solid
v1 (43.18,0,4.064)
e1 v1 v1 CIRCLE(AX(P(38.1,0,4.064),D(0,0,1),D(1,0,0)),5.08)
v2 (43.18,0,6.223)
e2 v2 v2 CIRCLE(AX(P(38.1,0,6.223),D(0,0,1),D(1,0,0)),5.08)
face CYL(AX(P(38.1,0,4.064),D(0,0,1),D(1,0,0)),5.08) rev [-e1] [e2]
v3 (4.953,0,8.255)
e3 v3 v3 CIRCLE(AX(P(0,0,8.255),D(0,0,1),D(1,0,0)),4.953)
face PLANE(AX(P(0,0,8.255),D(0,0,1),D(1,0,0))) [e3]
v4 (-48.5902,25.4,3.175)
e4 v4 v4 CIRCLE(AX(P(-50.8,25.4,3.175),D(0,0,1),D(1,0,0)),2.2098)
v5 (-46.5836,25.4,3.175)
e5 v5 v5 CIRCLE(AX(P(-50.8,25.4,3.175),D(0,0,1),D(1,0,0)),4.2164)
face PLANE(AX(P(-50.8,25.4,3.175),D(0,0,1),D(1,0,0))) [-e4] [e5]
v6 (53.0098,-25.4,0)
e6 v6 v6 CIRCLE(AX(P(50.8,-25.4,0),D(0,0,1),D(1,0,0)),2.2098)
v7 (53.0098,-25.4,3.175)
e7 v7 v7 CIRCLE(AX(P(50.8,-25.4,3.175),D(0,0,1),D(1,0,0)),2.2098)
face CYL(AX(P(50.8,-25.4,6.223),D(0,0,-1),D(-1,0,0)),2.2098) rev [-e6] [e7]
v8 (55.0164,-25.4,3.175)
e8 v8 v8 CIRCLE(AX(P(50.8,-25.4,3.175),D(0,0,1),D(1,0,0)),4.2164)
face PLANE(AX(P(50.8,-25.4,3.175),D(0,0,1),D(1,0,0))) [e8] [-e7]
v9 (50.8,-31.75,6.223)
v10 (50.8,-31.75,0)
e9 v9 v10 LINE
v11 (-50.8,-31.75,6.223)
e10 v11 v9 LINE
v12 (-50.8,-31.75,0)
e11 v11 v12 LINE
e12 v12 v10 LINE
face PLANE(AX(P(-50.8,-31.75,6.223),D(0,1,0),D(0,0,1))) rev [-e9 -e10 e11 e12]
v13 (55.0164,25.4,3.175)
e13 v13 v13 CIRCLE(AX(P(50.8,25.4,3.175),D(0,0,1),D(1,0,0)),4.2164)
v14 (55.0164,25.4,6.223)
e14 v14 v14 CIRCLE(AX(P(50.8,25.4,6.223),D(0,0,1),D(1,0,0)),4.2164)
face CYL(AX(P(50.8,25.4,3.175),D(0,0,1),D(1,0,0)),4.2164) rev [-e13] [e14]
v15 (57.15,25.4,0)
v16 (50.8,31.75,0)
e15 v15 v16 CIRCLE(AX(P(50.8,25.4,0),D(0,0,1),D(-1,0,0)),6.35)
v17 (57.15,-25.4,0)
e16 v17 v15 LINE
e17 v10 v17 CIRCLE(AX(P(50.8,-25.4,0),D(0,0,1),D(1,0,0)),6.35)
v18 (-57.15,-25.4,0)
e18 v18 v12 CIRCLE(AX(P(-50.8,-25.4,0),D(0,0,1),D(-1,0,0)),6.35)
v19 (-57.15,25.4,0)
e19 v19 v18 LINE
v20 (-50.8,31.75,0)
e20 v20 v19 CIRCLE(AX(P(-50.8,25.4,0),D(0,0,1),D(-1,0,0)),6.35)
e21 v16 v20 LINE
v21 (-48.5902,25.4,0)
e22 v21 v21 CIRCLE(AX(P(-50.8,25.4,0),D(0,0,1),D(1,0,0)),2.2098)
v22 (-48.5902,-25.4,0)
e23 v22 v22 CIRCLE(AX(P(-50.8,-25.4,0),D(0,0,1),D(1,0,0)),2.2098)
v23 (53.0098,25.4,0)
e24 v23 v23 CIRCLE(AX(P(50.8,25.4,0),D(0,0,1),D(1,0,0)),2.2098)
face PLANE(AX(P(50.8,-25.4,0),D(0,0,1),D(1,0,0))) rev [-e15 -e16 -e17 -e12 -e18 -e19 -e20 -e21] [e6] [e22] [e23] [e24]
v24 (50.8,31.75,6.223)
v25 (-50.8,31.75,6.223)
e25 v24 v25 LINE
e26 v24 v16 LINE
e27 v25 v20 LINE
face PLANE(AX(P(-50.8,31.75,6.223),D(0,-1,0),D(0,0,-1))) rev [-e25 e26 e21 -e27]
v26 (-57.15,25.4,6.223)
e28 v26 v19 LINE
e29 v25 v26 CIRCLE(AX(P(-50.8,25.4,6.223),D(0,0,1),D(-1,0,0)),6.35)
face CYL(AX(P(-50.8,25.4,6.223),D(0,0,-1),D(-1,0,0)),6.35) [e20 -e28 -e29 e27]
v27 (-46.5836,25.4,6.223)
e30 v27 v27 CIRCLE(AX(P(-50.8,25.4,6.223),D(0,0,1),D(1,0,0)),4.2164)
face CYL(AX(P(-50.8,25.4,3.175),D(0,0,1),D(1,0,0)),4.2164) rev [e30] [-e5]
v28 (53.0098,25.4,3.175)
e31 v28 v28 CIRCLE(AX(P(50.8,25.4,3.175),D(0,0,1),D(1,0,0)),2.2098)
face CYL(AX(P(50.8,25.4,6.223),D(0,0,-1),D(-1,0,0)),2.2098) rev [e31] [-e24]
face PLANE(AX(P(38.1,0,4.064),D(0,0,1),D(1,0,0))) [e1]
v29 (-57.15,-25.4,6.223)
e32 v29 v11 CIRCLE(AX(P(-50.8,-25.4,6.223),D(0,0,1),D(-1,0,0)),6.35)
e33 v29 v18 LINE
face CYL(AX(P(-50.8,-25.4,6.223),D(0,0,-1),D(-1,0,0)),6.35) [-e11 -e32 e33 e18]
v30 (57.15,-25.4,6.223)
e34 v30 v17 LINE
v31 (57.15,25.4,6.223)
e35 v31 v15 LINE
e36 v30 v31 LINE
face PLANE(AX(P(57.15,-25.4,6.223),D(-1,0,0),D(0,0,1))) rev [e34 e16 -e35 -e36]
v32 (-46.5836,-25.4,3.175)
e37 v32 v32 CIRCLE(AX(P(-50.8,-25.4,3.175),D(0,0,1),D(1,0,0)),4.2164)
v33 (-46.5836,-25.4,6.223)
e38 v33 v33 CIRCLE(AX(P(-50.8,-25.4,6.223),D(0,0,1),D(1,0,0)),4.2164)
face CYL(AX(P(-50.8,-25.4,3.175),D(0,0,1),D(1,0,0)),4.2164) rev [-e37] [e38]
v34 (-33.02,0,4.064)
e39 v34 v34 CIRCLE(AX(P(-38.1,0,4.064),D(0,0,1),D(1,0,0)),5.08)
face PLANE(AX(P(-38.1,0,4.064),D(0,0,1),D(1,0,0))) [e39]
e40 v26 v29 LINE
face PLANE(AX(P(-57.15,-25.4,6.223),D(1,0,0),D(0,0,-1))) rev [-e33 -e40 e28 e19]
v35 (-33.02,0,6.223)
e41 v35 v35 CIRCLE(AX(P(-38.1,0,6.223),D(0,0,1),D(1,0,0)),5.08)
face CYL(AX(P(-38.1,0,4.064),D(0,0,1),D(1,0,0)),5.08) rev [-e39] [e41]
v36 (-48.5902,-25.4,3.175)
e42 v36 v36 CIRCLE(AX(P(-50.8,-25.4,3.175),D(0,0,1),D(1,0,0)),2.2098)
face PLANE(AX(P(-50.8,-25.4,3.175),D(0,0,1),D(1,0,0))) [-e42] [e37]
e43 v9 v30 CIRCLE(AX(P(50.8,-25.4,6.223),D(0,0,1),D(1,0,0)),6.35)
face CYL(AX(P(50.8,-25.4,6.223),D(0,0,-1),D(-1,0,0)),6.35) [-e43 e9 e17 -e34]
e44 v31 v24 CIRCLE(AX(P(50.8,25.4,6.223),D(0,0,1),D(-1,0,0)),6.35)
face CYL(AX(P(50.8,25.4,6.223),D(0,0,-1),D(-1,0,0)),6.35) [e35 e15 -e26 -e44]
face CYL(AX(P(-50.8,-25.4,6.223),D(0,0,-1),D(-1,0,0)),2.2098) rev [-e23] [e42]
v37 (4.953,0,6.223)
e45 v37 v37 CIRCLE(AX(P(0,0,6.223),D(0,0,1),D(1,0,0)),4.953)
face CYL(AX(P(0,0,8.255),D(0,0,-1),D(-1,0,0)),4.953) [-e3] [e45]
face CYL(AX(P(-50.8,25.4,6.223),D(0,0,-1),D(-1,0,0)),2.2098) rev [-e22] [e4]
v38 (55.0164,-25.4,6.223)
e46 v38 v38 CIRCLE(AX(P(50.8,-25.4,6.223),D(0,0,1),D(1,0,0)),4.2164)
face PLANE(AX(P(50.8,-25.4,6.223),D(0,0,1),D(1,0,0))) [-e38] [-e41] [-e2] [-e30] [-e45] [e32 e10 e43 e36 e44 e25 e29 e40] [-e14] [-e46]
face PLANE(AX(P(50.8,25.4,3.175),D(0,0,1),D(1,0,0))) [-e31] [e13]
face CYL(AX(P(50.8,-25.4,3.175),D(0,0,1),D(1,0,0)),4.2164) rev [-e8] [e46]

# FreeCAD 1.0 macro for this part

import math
import FreeCAD as App
import Part
import Sketcher
Q = App.Units.Quantity

doc = App.newDocument("Part")
body = doc.addObject("PartDesign::Body", "Body")

sketch1 = body.newObject("Sketcher::SketchObject", "Sketch")
sketch1.AttachmentSupport = (doc.getObject("XY_Plane"), [""])
sketch1.MapMode = "FlatFace"
sketch1.addGeometry(Part.LineSegment(App.Vector(-50.8, -31.8, 0), App.Vector(50.8, -31.8, 0)), False)
sketch1.addGeometry(Part.ArcOfCircle(Part.Circle(App.Vector(50.8, -25.4, 0), App.Vector(0, 0, 1), 6.3), math.radians(-90), math.radians(0)), False)
sketch1.addGeometry(Part.LineSegment(App.Vector(57.1, -25.4, 0), App.Vector(57.1, 25.4, 0)), False)
sketch1.addGeometry(Part.ArcOfCircle(Part.Circle(App.Vector(50.8, 25.4, 0), App.Vector(0, 0, 1), 6.3), math.radians(0), math.radians(90)), False)
sketch1.addGeometry(Part.LineSegment(App.Vector(50.8, 31.8, 0), App.Vector(-50.8, 31.8, 0)), False)
sketch1.addGeometry(Part.ArcOfCircle(Part.Circle(App.Vector(-50.8, 25.4, 0), App.Vector(0, 0, 1), 6.3), math.radians(90), math.radians(180)), False)
sketch1.addGeometry(Part.LineSegment(App.Vector(-57.1, 25.4, 0), App.Vector(-57.1, -25.4, 0)), False)
sketch1.addGeometry(Part.ArcOfCircle(Part.Circle(App.Vector(-50.8, -25.4, 0), App.Vector(0, 0, 1), 6.3), math.radians(180), math.radians(270)), False)
sketch1.addGeometry(Part.Circle(App.Vector(-50.8, -25.4, 0), App.Vector(0, 0, 1), 2.2), False)
sketch1.addGeometry(Part.Circle(App.Vector(50.8, -25.4, 0), App.Vector(0, 0, 1), 2.2), False)
sketch1.addGeometry(Part.Circle(App.Vector(-50.8, 25.4, 0), App.Vector(0, 0, 1), 2.2), False)
sketch1.addGeometry(Part.Circle(App.Vector(50.8, 25.4, 0), App.Vector(0, 0, 1), 2.2), False)
sketch1.addConstraint(Sketcher.Constraint("Tangent", 0, 2, 1, 1))
sketch1.addConstraint(Sketcher.Constraint("Tangent", 1, 2, 2, 1))
sketch1.addConstraint(Sketcher.Constraint("Tangent", 2, 2, 3, 1))
sketch1.addConstraint(Sketcher.Constraint("Tangent", 3, 2, 4, 1))
sketch1.addConstraint(Sketcher.Constraint("Tangent", 4, 2, 5, 1))
sketch1.addConstraint(Sketcher.Constraint("Tangent", 5, 2, 6, 1))
sketch1.addConstraint(Sketcher.Constraint("Tangent", 6, 2, 7, 1))
sketch1.addConstraint(Sketcher.Constraint("Tangent", 7, 2, 0, 1))
sketch1.addConstraint(Sketcher.Constraint("Horizontal", 0))
sketch1.addConstraint(Sketcher.Constraint("Vertical", 2))
sketch1.addConstraint(Sketcher.Constraint("Horizontal", 4))
sketch1.addConstraint(Sketcher.Constraint("Vertical", 6))
sketch1.addConstraint(Sketcher.Constraint("Coincident", 8, 3, 7, 3))
sketch1.addConstraint(Sketcher.Constraint("Coincident", 9, 3, 1, 3))
sketch1.addConstraint(Sketcher.Constraint("Coincident", 10, 3, 5, 3))
sketch1.addConstraint(Sketcher.Constraint("Coincident", 11, 3, 3, 3))
sketch1.addConstraint(Sketcher.Constraint("Equal", 1, 3))
sketch1.addConstraint(Sketcher.Constraint("Equal", 3, 5))
sketch1.addConstraint(Sketcher.Constraint("Equal", 5, 7))
sketch1.addConstraint(Sketcher.Constraint("Equal", 8, 9))
sketch1.addConstraint(Sketcher.Constraint("Equal", 9, 10))
sketch1.addConstraint(Sketcher.Constraint("Equal", 10, 11))
sketch1.addConstraint(Sketcher.Constraint("Symmetric", 1, 3, 5, 3, -1, 1))
sketch1.addConstraint(Sketcher.Constraint("DistanceX", 0, 1, 0, 2, Q("4 in")))
sketch1.addConstraint(Sketcher.Constraint("DistanceY", 2, 1, 2, 2, Q("2 in")))
sketch1.addConstraint(Sketcher.Constraint("Radius", 1, Q("0.25 in")))
sketch1.addConstraint(Sketcher.Constraint("Diameter", 8, Q("0.174 in")))
pad1 = body.newObject("PartDesign::Pad", "Pad")
pad1.Profile = sketch1
pad1.Length = Q("0.245 in")

sketch2 = body.newObject("Sketcher::SketchObject", "Sketch001")
sketch2.AttachmentSupport = (doc.getObject("XY_Plane"), [""])
sketch2.MapMode = "FlatFace"
sketch2.AttachmentOffset = App.Placement(App.Vector(0, 0, 0.245 * 25.4), App.Rotation())
sketch2.addGeometry(Part.Circle(App.Vector(-50.8, 25.4, 0), App.Vector(0, 0, 1), 4.2), False)
sketch2.addGeometry(Part.Circle(App.Vector(50.8, 25.4, 0), App.Vector(0, 0, 1), 4.2), False)
sketch2.addGeometry(Part.Circle(App.Vector(50.8, -25.4, 0), App.Vector(0, 0, 1), 4.2), False)
sketch2.addGeometry(Part.Circle(App.Vector(-50.8, -25.4, 0), App.Vector(0, 0, 1), 4.2), False)
sketch2.addConstraint(Sketcher.Constraint("Equal", 0, 1))
sketch2.addConstraint(Sketcher.Constraint("Equal", 1, 2))
sketch2.addConstraint(Sketcher.Constraint("Equal", 2, 3))
sketch2.addConstraint(Sketcher.Constraint("Symmetric", 0, 3, 2, 3, -1, 1))
sketch2.addConstraint(Sketcher.Constraint("Symmetric", 1, 3, 3, 3, -1, 1))
sketch2.addConstraint(Sketcher.Constraint("Symmetric", 0, 3, 1, 3, -2))
sketch2.addConstraint(Sketcher.Constraint("Diameter", 0, Q("0.332 in")))
sketch2.addConstraint(Sketcher.Constraint("DistanceX", 0, 3, -1, 1, Q("2 in")))
sketch2.addConstraint(Sketcher.Constraint("DistanceY", -1, 1, 0, 3, Q("1 in")))
pocket1 = body.newObject("PartDesign::Pocket", "Pocket")
pocket1.Profile = sketch2
pocket1.Length = Q("0.12 in")

sketch3 = body.newObject("Sketcher::SketchObject", "Sketch002")
sketch3.AttachmentSupport = (doc.getObject("XY_Plane"), [""])
sketch3.MapMode = "FlatFace"
sketch3.AttachmentOffset = App.Placement(App.Vector(0, 0, 0.245 * 25.4), App.Rotation())
sketch3.addGeometry(Part.Circle(App.Vector(38, 0, 0), App.Vector(0, 0, 1), 5), False)
sketch3.addGeometry(Part.Circle(App.Vector(-38, 0, 0), App.Vector(0, 0, 1), 5), False)
sketch3.addConstraint(Sketcher.Constraint("Equal", 0, 1))
sketch3.addConstraint(Sketcher.Constraint("Symmetric", 0, 3, 1, 3, -1, 1))
sketch3.addConstraint(Sketcher.Constraint("PointOnObject", 0, 3, -1))
sketch3.addConstraint(Sketcher.Constraint("Diameter", 0, Q("0.4 in")))
sketch3.addConstraint(Sketcher.Constraint("DistanceX", 1, 3, 0, 3, Q("3 in")))
pocket2 = body.newObject("PartDesign::Pocket", "Pocket001")
pocket2.Profile = sketch3
pocket2.Length = Q("0.085 in")

sketch4 = body.newObject("Sketcher::SketchObject", "Sketch003")
sketch4.AttachmentSupport = (doc.getObject("XY_Plane"), [""])
sketch4.MapMode = "FlatFace"
sketch4.AttachmentOffset = App.Placement(App.Vector(0, 0, 0.245 * 25.4), App.Rotation())
sketch4.addGeometry(Part.Circle(App.Vector(0, 0, 0), App.Vector(0, 0, 1), 5), False)
sketch4.addConstraint(Sketcher.Constraint("Coincident", 0, 3, -1, 1))
sketch4.addConstraint(Sketcher.Constraint("Diameter", 0, Q("0.39 in")))
pad2 = body.newObject("PartDesign::Pad", "Pad001")
pad2.Profile = sketch4
pad2.Length = Q("0.08 in")

doc.recompute()
